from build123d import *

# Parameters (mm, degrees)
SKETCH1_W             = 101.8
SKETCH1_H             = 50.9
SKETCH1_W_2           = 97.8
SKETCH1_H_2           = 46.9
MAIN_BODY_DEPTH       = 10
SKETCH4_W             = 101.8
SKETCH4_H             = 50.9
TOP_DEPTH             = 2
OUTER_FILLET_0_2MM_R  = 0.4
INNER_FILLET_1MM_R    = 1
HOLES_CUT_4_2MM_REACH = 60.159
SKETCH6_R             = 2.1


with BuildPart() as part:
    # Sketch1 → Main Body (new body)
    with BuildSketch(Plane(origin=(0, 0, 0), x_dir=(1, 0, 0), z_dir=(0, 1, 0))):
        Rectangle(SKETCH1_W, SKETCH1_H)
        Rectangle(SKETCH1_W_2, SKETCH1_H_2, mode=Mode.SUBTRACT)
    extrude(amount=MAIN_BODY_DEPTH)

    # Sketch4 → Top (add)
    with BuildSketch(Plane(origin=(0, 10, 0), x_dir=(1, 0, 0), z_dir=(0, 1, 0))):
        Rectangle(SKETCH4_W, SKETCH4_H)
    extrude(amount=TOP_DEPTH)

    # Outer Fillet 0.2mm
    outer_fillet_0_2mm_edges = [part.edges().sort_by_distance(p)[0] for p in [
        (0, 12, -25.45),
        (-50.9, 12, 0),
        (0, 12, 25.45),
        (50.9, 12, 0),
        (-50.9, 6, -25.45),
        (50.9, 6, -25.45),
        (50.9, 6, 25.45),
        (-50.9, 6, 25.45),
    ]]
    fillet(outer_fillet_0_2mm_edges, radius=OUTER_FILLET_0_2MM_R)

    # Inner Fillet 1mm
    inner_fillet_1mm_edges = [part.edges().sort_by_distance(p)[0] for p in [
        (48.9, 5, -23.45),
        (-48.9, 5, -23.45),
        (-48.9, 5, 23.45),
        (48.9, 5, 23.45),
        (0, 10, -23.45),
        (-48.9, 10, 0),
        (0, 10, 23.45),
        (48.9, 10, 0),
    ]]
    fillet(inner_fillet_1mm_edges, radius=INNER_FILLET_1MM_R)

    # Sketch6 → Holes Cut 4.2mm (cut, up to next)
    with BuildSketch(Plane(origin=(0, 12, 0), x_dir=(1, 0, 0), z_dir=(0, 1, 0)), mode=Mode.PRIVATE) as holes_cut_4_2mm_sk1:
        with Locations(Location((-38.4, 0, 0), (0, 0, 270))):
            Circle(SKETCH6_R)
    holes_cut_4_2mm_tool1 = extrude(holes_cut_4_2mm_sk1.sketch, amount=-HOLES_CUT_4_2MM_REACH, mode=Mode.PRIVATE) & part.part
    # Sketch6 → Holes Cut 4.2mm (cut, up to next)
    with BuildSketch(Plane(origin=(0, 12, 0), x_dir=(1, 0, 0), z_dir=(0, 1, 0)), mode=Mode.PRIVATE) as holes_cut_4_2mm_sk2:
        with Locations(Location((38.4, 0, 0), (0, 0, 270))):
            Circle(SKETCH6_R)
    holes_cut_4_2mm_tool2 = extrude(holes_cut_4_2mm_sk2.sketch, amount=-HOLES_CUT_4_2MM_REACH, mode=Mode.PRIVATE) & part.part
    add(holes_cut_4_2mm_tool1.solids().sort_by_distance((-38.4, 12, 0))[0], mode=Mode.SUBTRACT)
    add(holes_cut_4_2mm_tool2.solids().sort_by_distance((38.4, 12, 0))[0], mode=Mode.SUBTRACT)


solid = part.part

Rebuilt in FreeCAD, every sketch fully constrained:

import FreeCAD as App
import Part
import Sketcher
Q = App.Units.Quantity


def edges_at(feature, points):
    """Names of the edges that pass closest to the given points."""
    edges = feature.Shape.Edges
    near = lambda p: min(range(len(edges)), key=lambda i: edges[i].distToShape(Part.Vertex(*p))[0])
    return sorted({f"Edge{near(p) + 1}" for p in points})


def add_polygon(sketch, points):
    """Adds a closed chain of lines whose ends are joined by coincident constraints."""
    first, n = sketch.GeometryCount, len(points)
    for a, b in zip(points, points[1:] + points[:1]):
        sketch.addGeometry(Part.LineSegment(App.Vector(*a, 0), App.Vector(*b, 0)), False)
    for i in range(n):
        sketch.addConstraint(Sketcher.Constraint("Coincident", first + i, 2, first + (i + 1) % n, 1))

doc = App.newDocument("Part")
body = doc.addObject("PartDesign::Body", "Body")

sketch1 = body.newObject("Sketcher::SketchObject", "Sketch")
sketch1.AttachmentSupport = (doc.getObject("XZ_Plane"), [""])
sketch1.MapMode = "FlatFace"
add_polygon(sketch1, [(-51, -25), (-51, 25), (51, 25), (51, -25)])
add_polygon(sketch1, [(49, 23), (-49, 23), (-49, -23), (49, -23)])
sketch1.addConstraint(Sketcher.Constraint("Vertical", 0))
sketch1.addConstraint(Sketcher.Constraint("Horizontal", 1))
sketch1.addConstraint(Sketcher.Constraint("Vertical", 2))
sketch1.addConstraint(Sketcher.Constraint("Horizontal", 3))
sketch1.addConstraint(Sketcher.Constraint("Horizontal", 4))
sketch1.addConstraint(Sketcher.Constraint("Vertical", 5))
sketch1.addConstraint(Sketcher.Constraint("Horizontal", 6))
sketch1.addConstraint(Sketcher.Constraint("Vertical", 7))
sketch1.addConstraint(Sketcher.Constraint("Symmetric", 0, 2, 2, 2, -1, 1))
sketch1.addConstraint(Sketcher.Constraint("Symmetric", 4, 2, 6, 2, -1, 1))
sketch1.addConstraint(Sketcher.Constraint("DistanceX", 1, 1, 1, 2, Q("101.8 mm")))
sketch1.addConstraint(Sketcher.Constraint("DistanceX", 4, 2, 4, 1, Q("97.8 mm")))
sketch1.addConstraint(Sketcher.Constraint("DistanceY", 0, 1, 0, 2, Q("50.9 mm")))
sketch1.addConstraint(Sketcher.Constraint("DistanceY", 5, 2, 5, 1, Q("46.9 mm")))
pad1 = body.newObject("PartDesign::Pad", "Pad")
pad1.Profile = sketch1
pad1.Length = 10
pad1.Reversed = True

sketch2 = body.newObject("Sketcher::SketchObject", "Sketch001")
sketch2.AttachmentSupport = (doc.getObject("XZ_Plane"), [""])
sketch2.MapMode = "FlatFace"
sketch2.AttachmentOffset = App.Placement(App.Vector(0, 0, -10), App.Rotation())
add_polygon(sketch2, [(-51, -25), (-51, 25), (51, 25), (51, -25)])
sketch2.addConstraint(Sketcher.Constraint("Vertical", 0))
sketch2.addConstraint(Sketcher.Constraint("Horizontal", 1))
sketch2.addConstraint(Sketcher.Constraint("Vertical", 2))
sketch2.addConstraint(Sketcher.Constraint("Horizontal", 3))
sketch2.addConstraint(Sketcher.Constraint("Symmetric", 0, 2, 2, 2, -1, 1))
sketch2.addConstraint(Sketcher.Constraint("DistanceX", 1, 1, 1, 2, Q("101.8 mm")))
sketch2.addConstraint(Sketcher.Constraint("DistanceY", 0, 1, 0, 2, Q("50.9 mm")))
pad2 = body.newObject("PartDesign::Pad", "Pad001")
pad2.Profile = sketch2
pad2.Length = 2
pad2.Reversed = True
doc.recompute()

fillet = body.newObject("PartDesign::Fillet", "Fillet")
fillet.Base = (pad2, edges_at(pad2, [
    (0, 12, -25.45),
    (-50.9, 12, 0),
    (0, 12, 25.45),
    (50.9, 12, 0),
    (-50.9, 6, -25.45),
    (50.9, 6, -25.45),
    (50.9, 6, 25.45),
    (-50.9, 6, 25.45),
]))
fillet.Radius = 0.4
doc.recompute()

fillet2 = body.newObject("PartDesign::Fillet", "Fillet001")
fillet2.Base = (fillet, edges_at(fillet, [
    (48.9, 5, -23.45),
    (-48.9, 5, -23.45),
    (-48.9, 5, 23.45),
    (48.9, 5, 23.45),
    (0, 10, -23.45),
    (-48.9, 10, 0),
    (0, 10, 23.45),
    (48.9, 10, 0),
]))
fillet2.Radius = 1

sketch3 = body.newObject("Sketcher::SketchObject", "Sketch002")
sketch3.AttachmentSupport = (doc.getObject("XZ_Plane"), [""])
sketch3.MapMode = "FlatFace"
sketch3.AttachmentOffset = App.Placement(App.Vector(0, 0, -12), App.Rotation())
sketch3.addGeometry(Part.Circle(App.Vector(-38.4, 0, 0), App.Vector(0, 0, 1), 2.1), False)
sketch3.addConstraint(Sketcher.Constraint("PointOnObject", 0, 3, -1))
sketch3.addConstraint(Sketcher.Constraint("Diameter", 0, Q("4.2 mm")))
sketch3.addConstraint(Sketcher.Constraint("DistanceX", 0, 3, -1, 1, Q("38.4 mm")))
pocket1 = body.newObject("PartDesign::Pocket", "Pocket")
pocket1.Profile = sketch3
pocket1.Type = "UpToFirst"
pocket1.Reversed = True

sketch4 = body.newObject("Sketcher::SketchObject", "Sketch003")
sketch4.AttachmentSupport = (doc.getObject("XZ_Plane"), [""])
sketch4.MapMode = "FlatFace"
sketch4.AttachmentOffset = App.Placement(App.Vector(0, 0, -12), App.Rotation())
sketch4.addGeometry(Part.Circle(App.Vector(38.4, 0, 0), App.Vector(0, 0, 1), 2.1), False)
sketch4.addConstraint(Sketcher.Constraint("PointOnObject", 0, 3, -1))
sketch4.addConstraint(Sketcher.Constraint("Diameter", 0, Q("4.2 mm")))
sketch4.addConstraint(Sketcher.Constraint("DistanceX", -1, 1, 0, 3, Q("38.4 mm")))
pocket2 = body.newObject("PartDesign::Pocket", "Pocket001")
pocket2.Profile = sketch4
pocket2.Type = "UpToFirst"
pocket2.Reversed = True

doc.recompute()
